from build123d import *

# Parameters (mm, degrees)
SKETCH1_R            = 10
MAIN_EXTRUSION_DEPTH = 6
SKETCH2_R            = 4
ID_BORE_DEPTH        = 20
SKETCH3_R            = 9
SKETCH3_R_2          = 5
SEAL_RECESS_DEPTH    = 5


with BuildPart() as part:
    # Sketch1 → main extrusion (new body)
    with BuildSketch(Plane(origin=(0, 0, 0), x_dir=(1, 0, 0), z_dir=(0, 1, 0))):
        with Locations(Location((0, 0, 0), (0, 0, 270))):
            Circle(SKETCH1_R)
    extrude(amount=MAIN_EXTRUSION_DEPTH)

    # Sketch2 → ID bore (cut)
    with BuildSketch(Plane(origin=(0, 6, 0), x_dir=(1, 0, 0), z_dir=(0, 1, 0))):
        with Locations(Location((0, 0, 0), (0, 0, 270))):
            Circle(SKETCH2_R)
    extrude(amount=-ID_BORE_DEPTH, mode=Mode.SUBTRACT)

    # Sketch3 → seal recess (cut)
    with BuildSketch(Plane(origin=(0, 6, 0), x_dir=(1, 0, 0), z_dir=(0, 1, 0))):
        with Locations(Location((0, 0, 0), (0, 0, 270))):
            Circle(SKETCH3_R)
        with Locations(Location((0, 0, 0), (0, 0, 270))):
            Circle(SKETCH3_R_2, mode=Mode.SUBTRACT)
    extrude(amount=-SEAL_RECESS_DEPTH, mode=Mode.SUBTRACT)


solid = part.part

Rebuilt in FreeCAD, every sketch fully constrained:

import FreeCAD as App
import Part
import Sketcher

V = App.Vector
Q = App.Units.Quantity

doc = App.newDocument("Part")
body = doc.addObject("PartDesign::Body", "Body")

# Sketch on XZ plane
sketch1 = body.newObject("Sketcher::SketchObject", "Sketch")
sketch1.AttachmentSupport = (doc.getObject("XZ_Plane"), [""])
sketch1.MapMode = "FlatFace"
sketch1.addGeometry(Part.Circle(V(0, 0, 0), V(0, 0, 1), 10), False)
sketch1.addConstraint(Sketcher.Constraint("Coincident", 0, 3, -1, 1))
sketch1.addConstraint(Sketcher.Constraint("Diameter", 0, Q("20 mm")))
pad1 = body.newObject("PartDesign::Pad", "Pad")
pad1.Profile = sketch1
pad1.Length = 6
pad1.Reversed = True

# Sketch on XZ plane
sketch2 = body.newObject("Sketcher::SketchObject", "Sketch001")
sketch2.AttachmentSupport = (doc.getObject("XZ_Plane"), [""])
sketch2.MapMode = "FlatFace"
sketch2.AttachmentOffset = App.Placement(V(0, 0, -6), App.Rotation())
sketch2.addGeometry(Part.Circle(V(0, 0, 0), V(0, 0, 1), 4), False)
sketch2.addConstraint(Sketcher.Constraint("Coincident", 0, 3, -1, 1))
sketch2.addConstraint(Sketcher.Constraint("Diameter", 0, Q("8 mm")))
pocket1 = body.newObject("PartDesign::Pocket", "Pocket")
pocket1.Profile = sketch2
pocket1.Length = 20
pocket1.Reversed = True

# Sketch on XZ plane
sketch3 = body.newObject("Sketcher::SketchObject", "Sketch002")
sketch3.AttachmentSupport = (doc.getObject("XZ_Plane"), [""])
sketch3.MapMode = "FlatFace"
sketch3.AttachmentOffset = App.Placement(V(0, 0, -6), App.Rotation())
sketch3.addGeometry(Part.Circle(V(0, 0, 0), V(0, 0, 1), 9), False)
sketch3.addGeometry(Part.Circle(V(0, 0, 0), V(0, 0, 1), 5), False)
sketch3.addConstraint(Sketcher.Constraint("Coincident", 0, 3, -1, 1))
sketch3.addConstraint(Sketcher.Constraint("Coincident", 1, 3, -1, 1))
sketch3.addConstraint(Sketcher.Constraint("Diameter", 0, Q("18 mm")))
sketch3.addConstraint(Sketcher.Constraint("Diameter", 1, Q("10 mm")))
pocket2 = body.newObject("PartDesign::Pocket", "Pocket001")
pocket2.Profile = sketch3
pocket2.Length = 5
pocket2.Reversed = True

doc.recompute()
